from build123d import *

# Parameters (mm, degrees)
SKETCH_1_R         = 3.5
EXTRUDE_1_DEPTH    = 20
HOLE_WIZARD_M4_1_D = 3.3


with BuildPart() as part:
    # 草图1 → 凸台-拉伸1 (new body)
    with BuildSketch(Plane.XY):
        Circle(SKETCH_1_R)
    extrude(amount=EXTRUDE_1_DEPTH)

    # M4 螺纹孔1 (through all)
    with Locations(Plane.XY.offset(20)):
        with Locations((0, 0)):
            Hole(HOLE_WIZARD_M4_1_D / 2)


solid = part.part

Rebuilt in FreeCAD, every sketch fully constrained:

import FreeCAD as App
import Part
import Sketcher
from FreeCAD import Vector
Q = App.Units.Quantity

doc = App.newDocument("Part")
params = doc.addObject("Spreadsheet::Sheet", "Params")
for row, (alias, value) in enumerate([
    ("sketch1_diameter", "7 mm"),
    ("pad1_length", "20 mm"),
    ("sketch2_diameter", "3.3 mm"),
    ("hole_diameter", "3.3 mm"),
], start=1):
    params.set(f"A{row}", alias)
    params.set(f"B{row}", "=" + value)
    params.setAlias(f"B{row}", alias)

body = doc.addObject("PartDesign::Body", "Body")

sketch1 = doc.addObject("Sketcher::SketchObject", "Sketch")
body.addObject(sketch1)
sketch1.AttachmentSupport = (doc.XY_Plane, [""])
sketch1.MapMode = "FlatFace"
sketch1.addGeometry(Part.Circle(Vector(0, 0, 0), Vector(0, 0, 1), 3.5), False)
sketch1.addConstraint(Sketcher.Constraint("Coincident", 0, 3, -1, 1))
sketch1.addConstraint(Sketcher.Constraint("Diameter", 0, Q("7 mm")))
sketch1.setExpression("Constraints[1]", "Params.sketch1_diameter")
pad1 = doc.addObject("PartDesign::Pad", "Pad")
body.addObject(pad1)
pad1.Profile = sketch1
pad1.setExpression("Length", "Params.pad1_length")

sketch2 = doc.addObject("Sketcher::SketchObject", "Sketch001")
body.addObject(sketch2)
sketch2.AttachmentSupport = (doc.XY_Plane, [""])
sketch2.MapMode = "FlatFace"
sketch2.AttachmentOffset = App.Placement(Vector(0, 0, 20), App.Rotation())
sketch2.addGeometry(Part.Circle(Vector(0, 0, 0), Vector(0, 0, 1), 1.65), False)
sketch2.addConstraint(Sketcher.Constraint("Coincident", 0, 3, -1, 1))
sketch2.addConstraint(Sketcher.Constraint("Diameter", 0, Q("3.3 mm")))
sketch2.setExpression("Constraints[1]", "Params.sketch2_diameter")
doc.recompute()
hole = doc.addObject("PartDesign::Hole", "Hole")
body.addObject(hole)
hole.Profile = sketch2
hole.ThreadType = "None"
hole.setExpression("Diameter", "Params.hole_diameter")
hole.DepthType = "ThroughAll"

doc.recompute()
